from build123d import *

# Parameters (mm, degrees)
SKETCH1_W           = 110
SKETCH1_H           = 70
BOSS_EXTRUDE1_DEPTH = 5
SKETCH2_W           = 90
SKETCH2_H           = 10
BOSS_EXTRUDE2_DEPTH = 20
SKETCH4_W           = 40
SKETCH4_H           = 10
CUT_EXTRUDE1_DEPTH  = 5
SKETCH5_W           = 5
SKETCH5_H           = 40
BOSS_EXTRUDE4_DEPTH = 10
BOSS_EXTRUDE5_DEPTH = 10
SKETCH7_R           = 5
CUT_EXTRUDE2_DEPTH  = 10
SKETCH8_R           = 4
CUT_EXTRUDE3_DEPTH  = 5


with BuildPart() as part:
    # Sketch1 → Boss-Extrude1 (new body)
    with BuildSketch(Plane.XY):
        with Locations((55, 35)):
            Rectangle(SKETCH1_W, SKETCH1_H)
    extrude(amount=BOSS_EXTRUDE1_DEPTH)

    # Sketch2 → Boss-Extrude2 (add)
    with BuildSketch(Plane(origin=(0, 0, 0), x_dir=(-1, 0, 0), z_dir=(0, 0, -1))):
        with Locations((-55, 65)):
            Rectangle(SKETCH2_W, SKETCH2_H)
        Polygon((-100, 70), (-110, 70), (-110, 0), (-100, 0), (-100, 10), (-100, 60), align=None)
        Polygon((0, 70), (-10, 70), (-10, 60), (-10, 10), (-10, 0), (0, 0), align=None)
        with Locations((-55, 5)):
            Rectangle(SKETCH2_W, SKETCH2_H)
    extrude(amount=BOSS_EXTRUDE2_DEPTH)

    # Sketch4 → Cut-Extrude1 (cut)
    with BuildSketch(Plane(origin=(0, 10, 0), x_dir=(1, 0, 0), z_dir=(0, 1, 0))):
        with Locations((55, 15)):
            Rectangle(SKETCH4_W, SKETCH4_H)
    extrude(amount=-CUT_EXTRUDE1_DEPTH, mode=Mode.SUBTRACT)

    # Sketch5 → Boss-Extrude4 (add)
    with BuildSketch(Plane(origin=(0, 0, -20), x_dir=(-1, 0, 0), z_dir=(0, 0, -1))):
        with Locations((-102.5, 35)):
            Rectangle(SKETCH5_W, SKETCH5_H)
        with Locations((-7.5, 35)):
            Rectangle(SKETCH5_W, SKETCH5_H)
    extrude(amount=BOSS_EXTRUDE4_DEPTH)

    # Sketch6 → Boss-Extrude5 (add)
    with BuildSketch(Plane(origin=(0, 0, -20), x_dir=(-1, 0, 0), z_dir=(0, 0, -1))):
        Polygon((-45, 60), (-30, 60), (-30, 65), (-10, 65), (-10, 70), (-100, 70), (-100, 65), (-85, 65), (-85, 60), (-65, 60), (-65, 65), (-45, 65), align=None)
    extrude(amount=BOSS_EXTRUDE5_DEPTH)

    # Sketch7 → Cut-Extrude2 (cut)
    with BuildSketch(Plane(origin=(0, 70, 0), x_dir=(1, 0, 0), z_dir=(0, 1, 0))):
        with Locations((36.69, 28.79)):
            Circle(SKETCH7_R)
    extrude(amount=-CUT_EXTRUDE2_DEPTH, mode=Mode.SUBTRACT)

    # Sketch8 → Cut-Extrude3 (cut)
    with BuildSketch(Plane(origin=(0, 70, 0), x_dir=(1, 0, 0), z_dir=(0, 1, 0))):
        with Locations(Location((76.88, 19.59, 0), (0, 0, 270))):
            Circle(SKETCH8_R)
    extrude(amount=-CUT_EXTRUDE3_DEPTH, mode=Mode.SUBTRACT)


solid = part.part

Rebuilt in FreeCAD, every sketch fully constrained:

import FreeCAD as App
import Part
import Sketcher

V = App.Vector
Q = App.Units.Quantity

doc = App.newDocument("Part")
body = doc.addObject("PartDesign::Body", "Body")

# Sketch on XY plane
sketch1 = body.newObject("Sketcher::SketchObject", "Sketch")
sketch1.AttachmentSupport = (doc.getObject("XY_Plane"), [""])
sketch1.MapMode = "FlatFace"
sketch1.addGeometry(Part.LineSegment(V(0, 70, 0), V(0, 0, 0)), False)
sketch1.addGeometry(Part.LineSegment(V(0, 0, 0), V(110, 0, 0)), False)
sketch1.addGeometry(Part.LineSegment(V(110, 0, 0), V(110, 70, 0)), False)
sketch1.addGeometry(Part.LineSegment(V(110, 70, 0), V(0, 70, 0)), False)
sketch1.addConstraint(Sketcher.Constraint("Coincident", 0, 2, 1, 1))
sketch1.addConstraint(Sketcher.Constraint("Coincident", 1, 2, 2, 1))
sketch1.addConstraint(Sketcher.Constraint("Coincident", 2, 2, 3, 1))
sketch1.addConstraint(Sketcher.Constraint("Coincident", 3, 2, 0, 1))
sketch1.addConstraint(Sketcher.Constraint("Vertical", 0))
sketch1.addConstraint(Sketcher.Constraint("Horizontal", 1))
sketch1.addConstraint(Sketcher.Constraint("Vertical", 2))
sketch1.addConstraint(Sketcher.Constraint("Horizontal", 3))
sketch1.addConstraint(Sketcher.Constraint("Coincident", 0, 2, -1, 1))
sketch1.addConstraint(Sketcher.Constraint("DistanceX", 1, 1, 1, 2, Q("110 mm")))
sketch1.addConstraint(Sketcher.Constraint("DistanceY", 0, 2, 0, 1, Q("70 mm")))
pad1 = body.newObject("PartDesign::Pad", "Pad")
pad1.Profile = sketch1
pad1.Length = 5

# Sketch on XY plane
sketch2 = body.newObject("Sketcher::SketchObject", "Sketch001")
sketch2.AttachmentSupport = (doc.getObject("XY_Plane"), [""])
sketch2.MapMode = "FlatFace"
sketch2.addGeometry(Part.LineSegment(V(0, 0, 0), V(0, 70, 0)), False)
sketch2.addGeometry(Part.LineSegment(V(0, 70, 0), V(110, 70, 0)), False)
sketch2.addGeometry(Part.LineSegment(V(110, 70, 0), V(110, 0, 0)), False)
sketch2.addGeometry(Part.LineSegment(V(110, 0, 0), V(0, 0, 0)), False)
sketch2.addGeometry(Part.LineSegment(V(100, 60, 0), V(10, 60, 0)), False)
sketch2.addGeometry(Part.LineSegment(V(10, 60, 0), V(10, 10, 0)), False)
sketch2.addGeometry(Part.LineSegment(V(10, 10, 0), V(100, 10, 0)), False)
sketch2.addGeometry(Part.LineSegment(V(100, 10, 0), V(100, 60, 0)), False)
sketch2.addConstraint(Sketcher.Constraint("Coincident", 0, 2, 1, 1))
sketch2.addConstraint(Sketcher.Constraint("Coincident", 1, 2, 2, 1))
sketch2.addConstraint(Sketcher.Constraint("Coincident", 2, 2, 3, 1))
sketch2.addConstraint(Sketcher.Constraint("Coincident", 3, 2, 0, 1))
sketch2.addConstraint(Sketcher.Constraint("Coincident", 4, 2, 5, 1))
sketch2.addConstraint(Sketcher.Constraint("Coincident", 5, 2, 6, 1))
sketch2.addConstraint(Sketcher.Constraint("Coincident", 6, 2, 7, 1))
sketch2.addConstraint(Sketcher.Constraint("Coincident", 7, 2, 4, 1))
sketch2.addConstraint(Sketcher.Constraint("Vertical", 0))
sketch2.addConstraint(Sketcher.Constraint("Horizontal", 1))
sketch2.addConstraint(Sketcher.Constraint("Vertical", 2))
sketch2.addConstraint(Sketcher.Constraint("Horizontal", 3))
sketch2.addConstraint(Sketcher.Constraint("Horizontal", 4))
sketch2.addConstraint(Sketcher.Constraint("Vertical", 5))
sketch2.addConstraint(Sketcher.Constraint("Horizontal", 6))
sketch2.addConstraint(Sketcher.Constraint("Vertical", 7))
sketch2.addConstraint(Sketcher.Constraint("Coincident", 3, 2, -1, 1))
sketch2.addConstraint(Sketcher.Constraint("DistanceX", 1, 1, 1, 2, Q("110 mm")))
sketch2.addConstraint(Sketcher.Constraint("DistanceX", 4, 2, 4, 1, Q("90 mm")))
sketch2.addConstraint(Sketcher.Constraint("DistanceY", 0, 1, 0, 2, Q("70 mm")))
sketch2.addConstraint(Sketcher.Constraint("DistanceY", 5, 2, 5, 1, Q("50 mm")))
sketch2.addConstraint(Sketcher.Constraint("DistanceX", -1, 1, 4, 2, Q("10 mm")))
sketch2.addConstraint(Sketcher.Constraint("DistanceY", -1, 1, 4, 2, Q("60 mm")))
pad2 = body.newObject("PartDesign::Pad", "Pad001")
pad2.Profile = sketch2
pad2.Length = 20
pad2.Reversed = True

# Sketch on XZ plane
sketch3 = body.newObject("Sketcher::SketchObject", "Sketch002")
sketch3.AttachmentSupport = (doc.getObject("XZ_Plane"), [""])
sketch3.MapMode = "FlatFace"
sketch3.AttachmentOffset = App.Placement(V(0, 0, -10), App.Rotation())
sketch3.addGeometry(Part.LineSegment(V(35, -20, 0), V(35, -10, 0)), False)
sketch3.addGeometry(Part.LineSegment(V(35, -10, 0), V(75, -10, 0)), False)
sketch3.addGeometry(Part.LineSegment(V(75, -10, 0), V(75, -20, 0)), False)
sketch3.addGeometry(Part.LineSegment(V(75, -20, 0), V(35, -20, 0)), False)
sketch3.addConstraint(Sketcher.Constraint("Coincident", 0, 2, 1, 1))
sketch3.addConstraint(Sketcher.Constraint("Coincident", 1, 2, 2, 1))
sketch3.addConstraint(Sketcher.Constraint("Coincident", 2, 2, 3, 1))
sketch3.addConstraint(Sketcher.Constraint("Coincident", 3, 2, 0, 1))
sketch3.addConstraint(Sketcher.Constraint("Vertical", 0))
sketch3.addConstraint(Sketcher.Constraint("Horizontal", 1))
sketch3.addConstraint(Sketcher.Constraint("Vertical", 2))
sketch3.addConstraint(Sketcher.Constraint("Horizontal", 3))
sketch3.addConstraint(Sketcher.Constraint("DistanceX", 1, 1, 1, 2, Q("40 mm")))
sketch3.addConstraint(Sketcher.Constraint("DistanceY", 0, 1, 0, 2, Q("10 mm")))
sketch3.addConstraint(Sketcher.Constraint("DistanceX", -1, 1, 0, 2, Q("35 mm")))
sketch3.addConstraint(Sketcher.Constraint("DistanceY", 0, 2, -1, 1, Q("10 mm")))
pocket1 = body.newObject("PartDesign::Pocket", "Pocket")
pocket1.Profile = sketch3
pocket1.Length = 5
pocket1.Reversed = True

# Sketch on XY plane
sketch4 = body.newObject("Sketcher::SketchObject", "Sketch003")
sketch4.AttachmentSupport = (doc.getObject("XY_Plane"), [""])
sketch4.MapMode = "FlatFace"
sketch4.AttachmentOffset = App.Placement(V(0, 0, -20), App.Rotation())
sketch4.addGeometry(Part.LineSegment(V(105, 55, 0), V(105, 15, 0)), False)
sketch4.addGeometry(Part.LineSegment(V(105, 15, 0), V(100, 15, 0)), False)
sketch4.addGeometry(Part.LineSegment(V(100, 15, 0), V(100, 55, 0)), False)
sketch4.addGeometry(Part.LineSegment(V(100, 55, 0), V(105, 55, 0)), False)
sketch4.addGeometry(Part.LineSegment(V(10, 55, 0), V(10, 15, 0)), False)
sketch4.addGeometry(Part.LineSegment(V(10, 15, 0), V(5, 15, 0)), False)
sketch4.addGeometry(Part.LineSegment(V(5, 15, 0), V(5, 55, 0)), False)
sketch4.addGeometry(Part.LineSegment(V(5, 55, 0), V(10, 55, 0)), False)
sketch4.addConstraint(Sketcher.Constraint("Coincident", 0, 2, 1, 1))
sketch4.addConstraint(Sketcher.Constraint("Coincident", 1, 2, 2, 1))
sketch4.addConstraint(Sketcher.Constraint("Coincident", 2, 2, 3, 1))
sketch4.addConstraint(Sketcher.Constraint("Coincident", 3, 2, 0, 1))
sketch4.addConstraint(Sketcher.Constraint("Coincident", 4, 2, 5, 1))
sketch4.addConstraint(Sketcher.Constraint("Coincident", 5, 2, 6, 1))
sketch4.addConstraint(Sketcher.Constraint("Coincident", 6, 2, 7, 1))
sketch4.addConstraint(Sketcher.Constraint("Coincident", 7, 2, 4, 1))
sketch4.addConstraint(Sketcher.Constraint("Vertical", 0))
sketch4.addConstraint(Sketcher.Constraint("Horizontal", 1))
sketch4.addConstraint(Sketcher.Constraint("Vertical", 2))
sketch4.addConstraint(Sketcher.Constraint("Horizontal", 3))
sketch4.addConstraint(Sketcher.Constraint("Vertical", 4))
sketch4.addConstraint(Sketcher.Constraint("Horizontal", 5))
sketch4.addConstraint(Sketcher.Constraint("Vertical", 6))
sketch4.addConstraint(Sketcher.Constraint("Horizontal", 7))
sketch4.addConstraint(Sketcher.Constraint("Horizontal", 1, 2, 4, 2))
sketch4.addConstraint(Sketcher.Constraint("Horizontal", 3, 2, 6, 2))
sketch4.addConstraint(Sketcher.Constraint("Equal", 3, 5))
sketch4.addConstraint(Sketcher.Constraint("DistanceX", 1, 2, 1, 1, Q("5 mm")))
sketch4.addConstraint(Sketcher.Constraint("DistanceY", 0, 2, 0, 1, Q("40 mm")))
sketch4.addConstraint(Sketcher.Constraint("DistanceX", -1, 1, 0, 2, Q("105 mm")))
sketch4.addConstraint(Sketcher.Constraint("DistanceY", -1, 1, 0, 2, Q("15 mm")))
sketch4.addConstraint(Sketcher.Constraint("DistanceX", -1, 1, 4, 2, Q("10 mm")))
pad3 = body.newObject("PartDesign::Pad", "Pad002")
pad3.Profile = sketch4
pad3.Length = 10
pad3.Reversed = True

# Sketch on XY plane
sketch5 = body.newObject("Sketcher::SketchObject", "Sketch004")
sketch5.AttachmentSupport = (doc.getObject("XY_Plane"), [""])
sketch5.MapMode = "FlatFace"
sketch5.AttachmentOffset = App.Placement(V(0, 0, -20), App.Rotation())
sketch5.addGeometry(Part.LineSegment(V(45, 60, 0), V(30, 60, 0)), False)
sketch5.addGeometry(Part.LineSegment(V(30, 60, 0), V(30, 65, 0)), False)
sketch5.addGeometry(Part.LineSegment(V(30, 65, 0), V(10, 65, 0)), False)
sketch5.addGeometry(Part.LineSegment(V(10, 65, 0), V(10, 70, 0)), False)
sketch5.addGeometry(Part.LineSegment(V(10, 70, 0), V(100, 70, 0)), False)
sketch5.addGeometry(Part.LineSegment(V(100, 70, 0), V(100, 65, 0)), False)
sketch5.addGeometry(Part.LineSegment(V(100, 65, 0), V(85, 65, 0)), False)
sketch5.addGeometry(Part.LineSegment(V(85, 65, 0), V(85, 60, 0)), False)
sketch5.addGeometry(Part.LineSegment(V(85, 60, 0), V(65, 60, 0)), False)
sketch5.addGeometry(Part.LineSegment(V(65, 60, 0), V(65, 65, 0)), False)
sketch5.addGeometry(Part.LineSegment(V(65, 65, 0), V(45, 65, 0)), False)
sketch5.addGeometry(Part.LineSegment(V(45, 65, 0), V(45, 60, 0)), False)
sketch5.addConstraint(Sketcher.Constraint("Coincident", 0, 2, 1, 1))
sketch5.addConstraint(Sketcher.Constraint("Coincident", 1, 2, 2, 1))
sketch5.addConstraint(Sketcher.Constraint("Coincident", 2, 2, 3, 1))
sketch5.addConstraint(Sketcher.Constraint("Coincident", 3, 2, 4, 1))
sketch5.addConstraint(Sketcher.Constraint("Coincident", 4, 2, 5, 1))
sketch5.addConstraint(Sketcher.Constraint("Coincident", 5, 2, 6, 1))
sketch5.addConstraint(Sketcher.Constraint("Coincident", 6, 2, 7, 1))
sketch5.addConstraint(Sketcher.Constraint("Coincident", 7, 2, 8, 1))
sketch5.addConstraint(Sketcher.Constraint("Coincident", 8, 2, 9, 1))
sketch5.addConstraint(Sketcher.Constraint("Coincident", 9, 2, 10, 1))
sketch5.addConstraint(Sketcher.Constraint("Coincident", 10, 2, 11, 1))
sketch5.addConstraint(Sketcher.Constraint("Coincident", 11, 2, 0, 1))
sketch5.addConstraint(Sketcher.Constraint("Horizontal", 0))
sketch5.addConstraint(Sketcher.Constraint("Vertical", 1))
sketch5.addConstraint(Sketcher.Constraint("Horizontal", 2))
sketch5.addConstraint(Sketcher.Constraint("Vertical", 3))
sketch5.addConstraint(Sketcher.Constraint("Horizontal", 4))
sketch5.addConstraint(Sketcher.Constraint("Vertical", 5))
sketch5.addConstraint(Sketcher.Constraint("Horizontal", 6))
sketch5.addConstraint(Sketcher.Constraint("Vertical", 7))
sketch5.addConstraint(Sketcher.Constraint("Horizontal", 8))
sketch5.addConstraint(Sketcher.Constraint("Vertical", 9))
sketch5.addConstraint(Sketcher.Constraint("Horizontal", 10))
sketch5.addConstraint(Sketcher.Constraint("Vertical", 11))
sketch5.addConstraint(Sketcher.Constraint("Horizontal", 2, 2, 5, 2))
sketch5.addConstraint(Sketcher.Constraint("Horizontal", 0, 2, 7, 2))
sketch5.addConstraint(Sketcher.Constraint("Horizontal", 6, 2, 9, 2))
sketch5.addConstraint(Sketcher.Constraint("Equal", 0, 6))
sketch5.addConstraint(Sketcher.Constraint("Equal", 2, 8))
sketch5.addConstraint(Sketcher.Constraint("Equal", 8, 10))
sketch5.addConstraint(Sketcher.Constraint("Equal", 1, 3))
sketch5.addConstraint(Sketcher.Constraint("DistanceX", 0, 2, 0, 1, Q("15 mm")))
sketch5.addConstraint(Sketcher.Constraint("DistanceX", 2, 2, 2, 1, Q("20 mm")))
sketch5.addConstraint(Sketcher.Constraint("DistanceY", 1, 1, 1, 2, Q("5 mm")))
sketch5.addConstraint(Sketcher.Constraint("DistanceX", -1, 1, 0, 2, Q("30 mm")))
sketch5.addConstraint(Sketcher.Constraint("DistanceY", -1, 1, 0, 2, Q("60 mm")))
pad4 = body.newObject("PartDesign::Pad", "Pad003")
pad4.Profile = sketch5
pad4.Length = 10
pad4.Reversed = True

# Sketch on XZ plane
sketch6 = body.newObject("Sketcher::SketchObject", "Sketch005")
sketch6.AttachmentSupport = (doc.getObject("XZ_Plane"), [""])
sketch6.MapMode = "FlatFace"
sketch6.AttachmentOffset = App.Placement(V(0, 0, -70), App.Rotation())
sketch6.addGeometry(Part.Circle(V(37, -29, 0), V(0, 0, 1), 5), False)
sketch6.addConstraint(Sketcher.Constraint("Diameter", 0, Q("10 mm")))
sketch6.addConstraint(Sketcher.Constraint("DistanceX", -1, 1, 0, 3, Q("36.69 mm")))
sketch6.addConstraint(Sketcher.Constraint("DistanceY", 0, 3, -1, 1, Q("28.79 mm")))
pocket2 = body.newObject("PartDesign::Pocket", "Pocket001")
pocket2.Profile = sketch6
pocket2.Length = 10
pocket2.Reversed = True

# Sketch on XZ plane
sketch7 = body.newObject("Sketcher::SketchObject", "Sketch006")
sketch7.AttachmentSupport = (doc.getObject("XZ_Plane"), [""])
sketch7.MapMode = "FlatFace"
sketch7.AttachmentOffset = App.Placement(V(0, 0, -70), App.Rotation())
sketch7.addGeometry(Part.Circle(V(76.9, -19.6, 0), V(0, 0, 1), 4), False)
sketch7.addConstraint(Sketcher.Constraint("Diameter", 0, Q("8 mm")))
sketch7.addConstraint(Sketcher.Constraint("DistanceX", -1, 1, 0, 3, Q("76.88 mm")))
sketch7.addConstraint(Sketcher.Constraint("DistanceY", 0, 3, -1, 1, Q("19.59 mm")))
pocket3 = body.newObject("PartDesign::Pocket", "Pocket002")
pocket3.Profile = sketch7
pocket3.Length = 5
pocket3.Reversed = True

doc.recompute()
